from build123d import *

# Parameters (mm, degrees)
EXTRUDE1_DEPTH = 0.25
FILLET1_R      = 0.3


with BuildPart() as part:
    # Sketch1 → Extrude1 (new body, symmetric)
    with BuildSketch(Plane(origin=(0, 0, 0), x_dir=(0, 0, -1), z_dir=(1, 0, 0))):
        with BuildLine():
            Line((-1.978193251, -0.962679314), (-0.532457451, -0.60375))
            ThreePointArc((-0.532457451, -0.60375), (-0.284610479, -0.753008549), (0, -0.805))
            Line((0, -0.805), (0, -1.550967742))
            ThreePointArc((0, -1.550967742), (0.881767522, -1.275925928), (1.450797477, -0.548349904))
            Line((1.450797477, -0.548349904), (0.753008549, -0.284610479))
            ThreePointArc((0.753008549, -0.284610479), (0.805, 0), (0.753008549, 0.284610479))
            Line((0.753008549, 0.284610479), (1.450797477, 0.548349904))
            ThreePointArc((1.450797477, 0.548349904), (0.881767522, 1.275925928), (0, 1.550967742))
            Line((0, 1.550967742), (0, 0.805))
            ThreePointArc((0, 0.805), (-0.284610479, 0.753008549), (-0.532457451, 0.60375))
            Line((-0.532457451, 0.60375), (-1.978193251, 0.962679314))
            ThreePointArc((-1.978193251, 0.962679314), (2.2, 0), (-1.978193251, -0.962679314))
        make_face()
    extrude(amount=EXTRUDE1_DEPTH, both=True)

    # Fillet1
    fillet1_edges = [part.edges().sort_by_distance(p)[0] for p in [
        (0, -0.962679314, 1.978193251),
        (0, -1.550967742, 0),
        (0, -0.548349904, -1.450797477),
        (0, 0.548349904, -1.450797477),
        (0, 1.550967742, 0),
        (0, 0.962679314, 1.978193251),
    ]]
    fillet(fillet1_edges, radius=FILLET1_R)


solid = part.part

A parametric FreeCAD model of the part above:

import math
import FreeCAD as App
import Part
import Sketcher

V = App.Vector


def edges_at(feature, points):
    """Names of the edges that pass closest to the given points."""
    edges = feature.Shape.Edges
    near = lambda p: min(range(len(edges)), key=lambda i: edges[i].distToShape(Part.Vertex(*p))[0])
    return sorted({f"Edge{near(p) + 1}" for p in points})

doc = App.newDocument("Part")
body = doc.addObject("PartDesign::Body", "Body")

# Sketch on YZ plane
sketch1 = body.newObject("Sketcher::SketchObject", "Sketch")
sketch1.AttachmentSupport = (doc.getObject("YZ_Plane"), [""])
sketch1.MapMode = "FlatFace"
sketch1.addGeometry([
    Part.LineSegment(V(-0.60375, 0.532457, 0), V(-0.962679, 1.978193, 0)),  # 0
    Part.ArcOfCircle(Part.Circle(V(0, 0, 0), V(0, 0, 1), 2.2), math.radians(115.949673), math.radians(424.050327)),  # 1
    Part.LineSegment(V(0.962679, 1.978193, 0), V(0.60375, 0.532457, 0)),  # 2
    Part.ArcOfCircle(Part.Circle(V(0, 0, 0), V(0, 0, 1), 0.805), math.radians(0), math.radians(41.409622)),  # 3
    Part.LineSegment(V(0.805, 0, 0), V(1.550968, 0, 0)),  # 4
    Part.ArcOfCircle(Part.Circle(V(0, 0, 0), V(0, 0, 1), 1.550968), math.radians(-69.295189), math.radians(0)),  # 5
    Part.LineSegment(V(0.54835, -1.450797, 0), V(0.28461, -0.753009, 0)),  # 6
    Part.ArcOfCircle(Part.Circle(V(0, 0, 0), V(0, 0, 1), 0.805), math.radians(-110.704811), math.radians(-69.295189)),  # 7
    Part.LineSegment(V(-0.28461, -0.753009, 0), V(-0.54835, -1.450797, 0)),  # 8
    Part.ArcOfCircle(Part.Circle(V(0, 0, 0), V(0, 0, 1), 1.550968), math.radians(180), math.radians(249.295189)),  # 9
    Part.LineSegment(V(-1.550968, 0, 0), V(-0.805, 0, 0)),  # 10
    Part.ArcOfCircle(Part.Circle(V(0, 0, 0), V(0, 0, 1), 0.805), math.radians(138.590378), math.radians(180)),  # 11
], False)
sketch1.addConstraint([
    Sketcher.Constraint("Coincident", 0, 2, 1, 1),
    Sketcher.Constraint("Coincident", 1, 2, 2, 1),
    Sketcher.Constraint("Coincident", 2, 2, 3, 2),
    Sketcher.Constraint("Coincident", 3, 1, 4, 1),
    Sketcher.Constraint("Coincident", 4, 2, 5, 2),
    Sketcher.Constraint("Coincident", 5, 1, 6, 1),
    Sketcher.Constraint("Coincident", 6, 2, 7, 2),
    Sketcher.Constraint("Coincident", 7, 1, 8, 1),
    Sketcher.Constraint("Coincident", 8, 2, 9, 2),
    Sketcher.Constraint("Coincident", 9, 1, 10, 1),
    Sketcher.Constraint("Coincident", 10, 2, 11, 2),
    Sketcher.Constraint("Coincident", 11, 1, 0, 1),
    Sketcher.Constraint("Horizontal", 4),
    Sketcher.Constraint("Horizontal", 10),
    Sketcher.Constraint("Coincident", 1, 3, -1, 1),
    Sketcher.Constraint("Coincident", 3, 3, -1, 1),
    Sketcher.Constraint("Coincident", 5, 3, -1, 1),
    Sketcher.Constraint("Coincident", 7, 3, -1, 1),
    Sketcher.Constraint("Coincident", 9, 3, -1, 1),
    Sketcher.Constraint("Coincident", 11, 3, -1, 1),
    Sketcher.Constraint("Equal", 3, 7),
    Sketcher.Constraint("Equal", 5, 9),
    Sketcher.Constraint("Equal", 7, 11),
    Sketcher.Constraint("PointOnObject", 3, 1, -1),
    Sketcher.Constraint("PointOnObject", 9, 1, -1),
    Sketcher.Constraint("Horizontal", 0, 2, 1, 2),
    Sketcher.Constraint("Horizontal", 6, 2, 7, 1),
    Sketcher.Constraint("Horizontal", 5, 1, 8, 2),
    Sketcher.Constraint("Horizontal", 2, 2, 11, 1),
    Sketcher.Constraint("Radius", 1, 2.2),
    Sketcher.Constraint("Radius", 3, 0.805),
    Sketcher.Constraint("Radius", 5, 1.550968),
    Sketcher.Constraint("DistanceX", 8, 2, 5, 1, 1.0967),
    Sketcher.Constraint("DistanceX", 0, 2, -1, 1, 0.962679),
    Sketcher.Constraint("DistanceX", -1, 1, 2, 2, 0.60375),
    Sketcher.Constraint("DistanceX", -1, 1, 6, 2, 0.28461),
])
pad1 = body.newObject("PartDesign::Pad", "Pad")
pad1.Profile = sketch1
pad1.Length = 0.5
pad1.Midplane = True
doc.recompute()

fillet = body.newObject("PartDesign::Fillet", "Fillet")
fillet.Base = (pad1, edges_at(pad1, [
    (0, -0.963, 1.978),
    (0, -1.551, 0),
    (0, -0.548, -1.451),
    (0, 0.548, -1.451),
    (0, 1.551, 0),
    (0, 0.963, 1.978),
]))
fillet.Radius = 0.3

doc.recompute()
